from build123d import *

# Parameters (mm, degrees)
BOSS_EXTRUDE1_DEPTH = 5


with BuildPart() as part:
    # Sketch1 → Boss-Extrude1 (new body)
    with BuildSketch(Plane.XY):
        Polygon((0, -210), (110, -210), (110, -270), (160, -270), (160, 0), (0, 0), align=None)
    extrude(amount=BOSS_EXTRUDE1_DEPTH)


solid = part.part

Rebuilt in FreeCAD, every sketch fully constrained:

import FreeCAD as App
import Part
import Sketcher

V = App.Vector

doc = App.newDocument("Part")
params = doc.addObject("Spreadsheet::Sheet", "Params")
for row, (alias, value) in enumerate([
    ("sketch1_width", "110 mm"),
    ("sketch1_width2", "50 mm"),
    ("sketch1_height", "60 mm"),
    ("sketch1_height2", "270 mm"),
    ("pad1_length", "5 mm"),
], start=1):
    params.set(f"A{row}", alias)
    params.set(f"B{row}", "=" + value)
    params.setAlias(f"B{row}", alias)

body = doc.addObject("PartDesign::Body", "Body")

# Sketch on XY plane
sketch1 = doc.addObject("Sketcher::SketchObject", "Sketch")
body.addObject(sketch1)
sketch1.AttachmentSupport = (doc.XY_Plane, [""])
sketch1.MapMode = "FlatFace"
sketch1.addGeometry([
    Part.LineSegment(V(0, -210, 0), V(110, -210, 0)),  # 0
    Part.LineSegment(V(110, -210, 0), V(110, -270, 0)),  # 1
    Part.LineSegment(V(110, -270, 0), V(160, -270, 0)),  # 2
    Part.LineSegment(V(160, -270, 0), V(160, 0, 0)),  # 3
    Part.LineSegment(V(160, 0, 0), V(0, 0, 0)),  # 4
    Part.LineSegment(V(0, 0, 0), V(0, -210, 0)),  # 5
], False)
sketch1.addConstraint([
    Sketcher.Constraint("Coincident", 0, 2, 1, 1),
    Sketcher.Constraint("Coincident", 1, 2, 2, 1),
    Sketcher.Constraint("Coincident", 2, 2, 3, 1),
    Sketcher.Constraint("Coincident", 3, 2, 4, 1),
    Sketcher.Constraint("Coincident", 4, 2, 5, 1),
    Sketcher.Constraint("Coincident", 5, 2, 0, 1),
    Sketcher.Constraint("Horizontal", 0),
    Sketcher.Constraint("Vertical", 1),
    Sketcher.Constraint("Horizontal", 2),
    Sketcher.Constraint("Vertical", 3),
    Sketcher.Constraint("Horizontal", 4),
    Sketcher.Constraint("Vertical", 5),
    Sketcher.Constraint("Coincident", 4, 2, -1, 1),
    Sketcher.Constraint("DistanceX", 0, 1, 0, 2, 110.0),
    Sketcher.Constraint("DistanceX", 2, 1, 2, 2, 50.0),
    Sketcher.Constraint("DistanceY", 1, 2, 1, 1, 60.0),
    Sketcher.Constraint("DistanceY", 3, 1, 3, 2, 270.0),
])
sketch1.setExpression("Constraints[13]", "Params.sketch1_width")
sketch1.setExpression("Constraints[14]", "Params.sketch1_width2")
sketch1.setExpression("Constraints[15]", "Params.sketch1_height")
sketch1.setExpression("Constraints[16]", "Params.sketch1_height2")
pad1 = doc.addObject("PartDesign::Pad", "Pad")
body.addObject(pad1)
pad1.Profile = sketch1
pad1.setExpression("Length", "Params.pad1_length")

doc.recompute()
